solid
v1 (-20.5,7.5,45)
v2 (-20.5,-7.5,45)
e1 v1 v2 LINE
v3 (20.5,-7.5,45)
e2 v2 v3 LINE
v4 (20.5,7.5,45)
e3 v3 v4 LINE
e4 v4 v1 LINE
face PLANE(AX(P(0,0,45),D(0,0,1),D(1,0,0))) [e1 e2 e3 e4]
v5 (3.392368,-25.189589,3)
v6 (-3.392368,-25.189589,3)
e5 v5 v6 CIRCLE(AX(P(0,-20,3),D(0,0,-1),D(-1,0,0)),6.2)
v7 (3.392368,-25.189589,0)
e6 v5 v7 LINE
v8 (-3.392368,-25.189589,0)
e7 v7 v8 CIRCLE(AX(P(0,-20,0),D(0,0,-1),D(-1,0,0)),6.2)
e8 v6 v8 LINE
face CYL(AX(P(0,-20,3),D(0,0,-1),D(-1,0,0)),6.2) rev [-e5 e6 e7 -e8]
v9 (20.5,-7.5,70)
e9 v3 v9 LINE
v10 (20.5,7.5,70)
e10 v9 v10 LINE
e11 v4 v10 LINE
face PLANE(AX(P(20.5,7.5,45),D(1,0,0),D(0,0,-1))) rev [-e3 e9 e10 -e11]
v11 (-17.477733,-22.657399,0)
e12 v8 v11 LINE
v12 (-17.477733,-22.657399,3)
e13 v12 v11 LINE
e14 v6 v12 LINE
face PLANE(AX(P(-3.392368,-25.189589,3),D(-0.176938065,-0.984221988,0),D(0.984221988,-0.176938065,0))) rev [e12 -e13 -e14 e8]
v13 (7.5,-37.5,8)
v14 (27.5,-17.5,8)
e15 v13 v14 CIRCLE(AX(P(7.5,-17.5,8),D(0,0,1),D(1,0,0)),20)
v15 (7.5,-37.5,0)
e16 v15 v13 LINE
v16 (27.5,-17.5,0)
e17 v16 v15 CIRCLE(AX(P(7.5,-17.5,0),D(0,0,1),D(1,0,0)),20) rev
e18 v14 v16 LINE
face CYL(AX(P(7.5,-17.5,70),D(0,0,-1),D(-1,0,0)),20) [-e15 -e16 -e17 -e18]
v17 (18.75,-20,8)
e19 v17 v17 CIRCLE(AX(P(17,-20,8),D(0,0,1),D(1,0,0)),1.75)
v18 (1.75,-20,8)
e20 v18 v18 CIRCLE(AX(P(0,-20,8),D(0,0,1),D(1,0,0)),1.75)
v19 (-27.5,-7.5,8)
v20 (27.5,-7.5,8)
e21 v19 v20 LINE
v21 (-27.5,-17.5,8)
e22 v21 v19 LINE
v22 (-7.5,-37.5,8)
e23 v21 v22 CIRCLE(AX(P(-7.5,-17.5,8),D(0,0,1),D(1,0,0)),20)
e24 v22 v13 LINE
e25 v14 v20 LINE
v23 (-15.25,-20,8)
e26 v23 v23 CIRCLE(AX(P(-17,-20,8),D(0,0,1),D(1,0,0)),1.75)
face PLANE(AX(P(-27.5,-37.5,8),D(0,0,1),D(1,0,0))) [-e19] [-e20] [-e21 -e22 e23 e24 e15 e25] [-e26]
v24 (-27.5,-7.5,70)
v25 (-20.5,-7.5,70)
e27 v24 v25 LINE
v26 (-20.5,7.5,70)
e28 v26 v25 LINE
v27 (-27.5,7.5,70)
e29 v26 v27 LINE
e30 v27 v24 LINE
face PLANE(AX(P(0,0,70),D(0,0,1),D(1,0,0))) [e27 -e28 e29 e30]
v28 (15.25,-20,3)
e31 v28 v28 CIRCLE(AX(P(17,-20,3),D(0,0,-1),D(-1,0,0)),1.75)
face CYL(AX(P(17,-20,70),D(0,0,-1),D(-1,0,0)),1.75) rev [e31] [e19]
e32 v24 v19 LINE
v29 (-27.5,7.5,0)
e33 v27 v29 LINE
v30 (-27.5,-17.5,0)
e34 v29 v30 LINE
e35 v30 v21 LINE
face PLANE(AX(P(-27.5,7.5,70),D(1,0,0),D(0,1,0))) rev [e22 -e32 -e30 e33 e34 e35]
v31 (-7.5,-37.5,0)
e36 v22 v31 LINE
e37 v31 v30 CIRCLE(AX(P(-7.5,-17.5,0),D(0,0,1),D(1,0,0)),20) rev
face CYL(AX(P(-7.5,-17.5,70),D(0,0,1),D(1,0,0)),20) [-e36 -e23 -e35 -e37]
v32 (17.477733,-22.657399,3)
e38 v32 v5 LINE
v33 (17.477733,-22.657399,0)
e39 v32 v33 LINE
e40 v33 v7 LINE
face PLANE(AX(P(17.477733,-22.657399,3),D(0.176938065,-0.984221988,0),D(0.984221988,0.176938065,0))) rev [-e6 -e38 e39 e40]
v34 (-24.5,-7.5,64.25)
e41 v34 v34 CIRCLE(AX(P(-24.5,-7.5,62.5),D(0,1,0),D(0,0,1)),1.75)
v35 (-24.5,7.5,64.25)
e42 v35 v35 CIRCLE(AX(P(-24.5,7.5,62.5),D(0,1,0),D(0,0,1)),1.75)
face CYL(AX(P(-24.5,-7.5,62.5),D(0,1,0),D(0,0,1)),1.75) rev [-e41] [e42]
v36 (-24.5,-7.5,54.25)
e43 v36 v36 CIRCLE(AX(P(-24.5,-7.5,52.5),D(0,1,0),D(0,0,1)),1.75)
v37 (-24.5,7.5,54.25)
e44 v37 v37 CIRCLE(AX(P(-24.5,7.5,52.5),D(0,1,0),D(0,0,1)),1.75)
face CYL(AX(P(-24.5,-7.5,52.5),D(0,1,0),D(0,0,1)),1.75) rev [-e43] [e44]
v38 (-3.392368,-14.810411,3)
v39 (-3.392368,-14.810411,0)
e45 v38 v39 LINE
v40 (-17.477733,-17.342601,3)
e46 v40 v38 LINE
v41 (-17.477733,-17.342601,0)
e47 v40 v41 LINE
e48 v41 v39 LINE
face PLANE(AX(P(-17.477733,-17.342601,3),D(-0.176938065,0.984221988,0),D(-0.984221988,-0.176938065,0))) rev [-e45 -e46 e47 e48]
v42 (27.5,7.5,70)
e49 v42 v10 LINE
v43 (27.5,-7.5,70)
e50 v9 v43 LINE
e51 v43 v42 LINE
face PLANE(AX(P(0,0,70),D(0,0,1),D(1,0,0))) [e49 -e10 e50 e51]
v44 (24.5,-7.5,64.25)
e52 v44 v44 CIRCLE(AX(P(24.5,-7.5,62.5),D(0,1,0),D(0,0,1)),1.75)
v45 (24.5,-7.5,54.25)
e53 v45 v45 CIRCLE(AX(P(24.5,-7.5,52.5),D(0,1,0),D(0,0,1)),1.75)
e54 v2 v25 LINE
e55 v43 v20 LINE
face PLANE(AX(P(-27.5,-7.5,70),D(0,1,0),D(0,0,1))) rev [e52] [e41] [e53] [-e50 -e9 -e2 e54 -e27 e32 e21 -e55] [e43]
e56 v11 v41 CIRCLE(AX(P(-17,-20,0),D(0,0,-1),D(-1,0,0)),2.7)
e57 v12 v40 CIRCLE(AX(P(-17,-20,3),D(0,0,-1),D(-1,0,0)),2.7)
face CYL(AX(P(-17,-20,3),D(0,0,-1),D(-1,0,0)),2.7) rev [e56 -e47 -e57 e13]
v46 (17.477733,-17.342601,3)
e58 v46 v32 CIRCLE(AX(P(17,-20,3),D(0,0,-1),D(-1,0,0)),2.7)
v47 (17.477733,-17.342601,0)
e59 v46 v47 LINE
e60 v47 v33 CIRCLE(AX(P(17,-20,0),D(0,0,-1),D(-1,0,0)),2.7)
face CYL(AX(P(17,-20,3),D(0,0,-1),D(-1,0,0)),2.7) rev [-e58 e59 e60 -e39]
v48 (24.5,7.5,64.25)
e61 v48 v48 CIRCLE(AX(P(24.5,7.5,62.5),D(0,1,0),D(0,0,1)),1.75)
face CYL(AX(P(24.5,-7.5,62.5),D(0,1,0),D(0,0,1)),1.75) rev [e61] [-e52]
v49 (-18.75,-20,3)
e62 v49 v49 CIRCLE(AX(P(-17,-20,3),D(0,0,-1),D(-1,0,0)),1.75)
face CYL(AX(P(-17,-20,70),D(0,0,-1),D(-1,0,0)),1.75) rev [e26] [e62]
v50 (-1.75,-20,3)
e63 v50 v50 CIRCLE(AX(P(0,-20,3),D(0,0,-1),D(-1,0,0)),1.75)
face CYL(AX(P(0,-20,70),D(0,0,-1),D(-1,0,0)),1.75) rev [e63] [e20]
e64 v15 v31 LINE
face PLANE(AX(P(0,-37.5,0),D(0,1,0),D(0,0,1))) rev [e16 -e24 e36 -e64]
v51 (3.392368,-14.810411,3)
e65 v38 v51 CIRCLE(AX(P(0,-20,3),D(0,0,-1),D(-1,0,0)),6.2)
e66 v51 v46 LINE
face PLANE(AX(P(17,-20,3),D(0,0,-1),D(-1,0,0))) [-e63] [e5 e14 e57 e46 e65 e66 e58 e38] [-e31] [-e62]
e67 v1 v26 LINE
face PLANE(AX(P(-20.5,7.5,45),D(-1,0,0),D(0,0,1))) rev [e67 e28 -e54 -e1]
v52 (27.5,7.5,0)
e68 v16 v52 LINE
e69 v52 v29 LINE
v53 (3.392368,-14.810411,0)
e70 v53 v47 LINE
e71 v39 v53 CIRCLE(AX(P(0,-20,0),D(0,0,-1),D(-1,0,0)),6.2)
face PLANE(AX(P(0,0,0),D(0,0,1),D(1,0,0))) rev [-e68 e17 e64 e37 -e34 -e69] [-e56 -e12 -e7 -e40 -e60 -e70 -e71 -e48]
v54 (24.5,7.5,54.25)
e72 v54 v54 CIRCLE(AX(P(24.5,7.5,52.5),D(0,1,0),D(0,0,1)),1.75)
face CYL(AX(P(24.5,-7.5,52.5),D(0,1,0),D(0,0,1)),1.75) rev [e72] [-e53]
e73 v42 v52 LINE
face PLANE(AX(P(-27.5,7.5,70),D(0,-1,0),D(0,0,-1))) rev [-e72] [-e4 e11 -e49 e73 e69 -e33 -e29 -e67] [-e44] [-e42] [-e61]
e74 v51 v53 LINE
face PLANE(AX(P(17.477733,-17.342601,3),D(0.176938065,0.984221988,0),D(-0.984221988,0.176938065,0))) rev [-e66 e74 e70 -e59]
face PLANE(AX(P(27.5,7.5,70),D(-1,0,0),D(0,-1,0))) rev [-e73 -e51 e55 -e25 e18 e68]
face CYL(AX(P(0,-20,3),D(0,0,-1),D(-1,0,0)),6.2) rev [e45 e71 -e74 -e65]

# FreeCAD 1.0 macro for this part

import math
import FreeCAD as App
import Part
import Sketcher

V = App.Vector
Q = App.Units.Quantity


def edges_at(feature, points):
    """Names of the edges that pass closest to the given points."""
    edges = feature.Shape.Edges
    near = lambda p: min(range(len(edges)), key=lambda i: edges[i].distToShape(Part.Vertex(*p))[0])
    return sorted({f"Edge{near(p) + 1}" for p in points})

doc = App.newDocument("Part")
params = doc.addObject("Spreadsheet::Sheet", "Params")
for row, (alias, value) in enumerate([
    ("sketch1_width", "55 mm"),
    ("sketch1_height", "15 mm"),
    ("pad1_length", "70 mm"),
    ("sketch2_width", "41 mm"),
    ("sketch2_height", "15 mm"),
    ("pocket1_length", "25 mm"),
    ("sketch3_diameter", "3.5 mm"),
    ("sketch4_width", "55 mm"),
    ("sketch4_height", "8 mm"),
    ("pad2_length", "30 mm"),
    ("fillet_radius", "20 mm"),
    ("sketch5_radius", "6.2 mm"),
    ("sketch5_radius2", "2.7 mm"),
    ("sketch5_radius3", "6.2 mm"),
    ("sketch5_radius4", "2.7 mm"),
    ("pocket3_length", "3 mm"),
    ("sketch6_diameter", "3.5 mm"),
], start=1):
    params.set(f"A{row}", alias)
    params.set(f"B{row}", "=" + value)
    params.setAlias(f"B{row}", alias)

body = doc.addObject("PartDesign::Body", "Body")

# Sketch on XY plane
sketch1 = body.newObject("Sketcher::SketchObject", "Sketch")
sketch1.AttachmentSupport = (doc.getObject("XY_Plane"), [""])
sketch1.MapMode = "FlatFace"
sketch1.addGeometry([
    Part.LineSegment(V(-28, 8, 0), V(-28, -8, 0)),
    Part.LineSegment(V(-28, -8, 0), V(28, -8, 0)),
    Part.LineSegment(V(28, -8, 0), V(28, 8, 0)),
    Part.LineSegment(V(28, 8, 0), V(-28, 8, 0)),
], False)
sketch1.addConstraint([
    Sketcher.Constraint("Coincident", 0, 2, 1, 1),
    Sketcher.Constraint("Coincident", 1, 2, 2, 1),
    Sketcher.Constraint("Coincident", 2, 2, 3, 1),
    Sketcher.Constraint("Coincident", 3, 2, 0, 1),
    Sketcher.Constraint("Vertical", 0),
    Sketcher.Constraint("Horizontal", 1),
    Sketcher.Constraint("Vertical", 2),
    Sketcher.Constraint("Horizontal", 3),
    Sketcher.Constraint("Symmetric", 0, 2, 2, 2, -1, 1),
    Sketcher.Constraint("DistanceX", 1, 1, 1, 2, Q("55 mm")),
    Sketcher.Constraint("DistanceY", 0, 2, 0, 1, Q("15 mm")),
])
sketch1.setExpression("Constraints[9]", "Params.sketch1_width")
sketch1.setExpression("Constraints[10]", "Params.sketch1_height")
pad1 = body.newObject("PartDesign::Pad", "Pad")
pad1.Profile = sketch1
pad1.setExpression("Length", "Params.pad1_length")

# Sketch on XY plane
sketch2 = body.newObject("Sketcher::SketchObject", "Sketch001")
sketch2.AttachmentSupport = (doc.getObject("XY_Plane"), [""])
sketch2.MapMode = "FlatFace"
sketch2.AttachmentOffset = App.Placement(V(0, 0, 70), App.Rotation())
sketch2.addGeometry([
    Part.LineSegment(V(-20, 8, 0), V(-20, -8, 0)),
    Part.LineSegment(V(-20, -8, 0), V(20, -8, 0)),
    Part.LineSegment(V(20, -8, 0), V(20, 8, 0)),
    Part.LineSegment(V(20, 8, 0), V(-20, 8, 0)),
], False)
sketch2.addConstraint([
    Sketcher.Constraint("Coincident", 0, 2, 1, 1),
    Sketcher.Constraint("Coincident", 1, 2, 2, 1),
    Sketcher.Constraint("Coincident", 2, 2, 3, 1),
    Sketcher.Constraint("Coincident", 3, 2, 0, 1),
    Sketcher.Constraint("Vertical", 0),
    Sketcher.Constraint("Horizontal", 1),
    Sketcher.Constraint("Vertical", 2),
    Sketcher.Constraint("Horizontal", 3),
    Sketcher.Constraint("Symmetric", 0, 2, 2, 2, -1, 1),
    Sketcher.Constraint("DistanceX", 1, 1, 1, 2, Q("41 mm")),
    Sketcher.Constraint("DistanceY", 0, 2, 0, 1, Q("15 mm")),
])
sketch2.setExpression("Constraints[9]", "Params.sketch2_width")
sketch2.setExpression("Constraints[10]", "Params.sketch2_height")
pocket1 = body.newObject("PartDesign::Pocket", "Pocket")
pocket1.Profile = sketch2
pocket1.setExpression("Length", "Params.pocket1_length")

# Sketch on XZ plane
sketch3 = body.newObject("Sketcher::SketchObject", "Sketch002")
sketch3.AttachmentSupport = (doc.getObject("XZ_Plane"), [""])
sketch3.MapMode = "FlatFace"
sketch3.AttachmentOffset = App.Placement(V(0, 0, -7.5), App.Rotation())
sketch3.addGeometry([
    Part.Circle(V(-24.5, 62.5, 0), V(0, 0, 1), 1.8),
    Part.Circle(V(24.5, 62.5, 0), V(0, 0, 1), 1.8),
    Part.Circle(V(-24.5, 52.5, 0), V(0, 0, 1), 1.8),
    Part.Circle(V(24.5, 52.5, 0), V(0, 0, 1), 1.8),
], False)
sketch3.addConstraint([
    Sketcher.Constraint("Equal", 0, 1),
    Sketcher.Constraint("Equal", 1, 2),
    Sketcher.Constraint("Equal", 2, 3),
    Sketcher.Constraint("Symmetric", 0, 3, 1, 3, -2),
    Sketcher.Constraint("Symmetric", 2, 3, 3, 3, -2),
    Sketcher.Constraint("Vertical", 0, 3, 2, 3),
    Sketcher.Constraint("Diameter", 0, Q("3.5 mm")),
    Sketcher.Constraint("DistanceX", 0, 3, 1, 3, Q("49 mm")),
    Sketcher.Constraint("DistanceY", 2, 3, 0, 3, Q("10 mm")),
    Sketcher.Constraint("DistanceY", -1, 1, 0, 3, Q("62.5 mm")),
])
sketch3.setExpression("Constraints[6]", "Params.sketch3_diameter")
pocket2 = body.newObject("PartDesign::Pocket", "Pocket001")
pocket2.Profile = sketch3
pocket2.Type = "ThroughAll"
pocket2.Reversed = True

# Sketch on XZ plane
sketch4 = body.newObject("Sketcher::SketchObject", "Sketch003")
sketch4.AttachmentSupport = (doc.getObject("XZ_Plane"), [""])
sketch4.MapMode = "FlatFace"
sketch4.AttachmentOffset = App.Placement(V(0, 0, 7.5), App.Rotation())
sketch4.addGeometry([
    Part.LineSegment(V(-28, 0, 0), V(-28, 8, 0)),
    Part.LineSegment(V(-28, 8, 0), V(28, 8, 0)),
    Part.LineSegment(V(28, 8, 0), V(28, 0, 0)),
    Part.LineSegment(V(28, 0, 0), V(-28, 0, 0)),
], False)
sketch4.addConstraint([
    Sketcher.Constraint("Coincident", 0, 2, 1, 1),
    Sketcher.Constraint("Coincident", 1, 2, 2, 1),
    Sketcher.Constraint("Coincident", 2, 2, 3, 1),
    Sketcher.Constraint("Coincident", 3, 2, 0, 1),
    Sketcher.Constraint("Vertical", 0),
    Sketcher.Constraint("Horizontal", 1),
    Sketcher.Constraint("Vertical", 2),
    Sketcher.Constraint("Horizontal", 3),
    Sketcher.Constraint("Symmetric", 2, 2, 3, 2, -1, 1),
    Sketcher.Constraint("DistanceX", 1, 1, 1, 2, Q("55 mm")),
    Sketcher.Constraint("DistanceY", 0, 1, 0, 2, Q("8 mm")),
])
sketch4.setExpression("Constraints[9]", "Params.sketch4_width")
sketch4.setExpression("Constraints[10]", "Params.sketch4_height")
pad2 = body.newObject("PartDesign::Pad", "Pad001")
pad2.Profile = sketch4
pad2.setExpression("Length", "Params.pad2_length")
doc.recompute()

fillet = body.newObject("PartDesign::Fillet", "Fillet")
fillet.Base = (pad2, edges_at(pad2, [(-27.5, -37.5, 4), (27.5, -37.5, 4)]))
fillet.setExpression("Radius", "Params.fillet_radius")

# Sketch on XY plane
sketch5 = body.newObject("Sketcher::SketchObject", "Sketch004")
sketch5.AttachmentSupport = (doc.getObject("XY_Plane"), [""])
sketch5.MapMode = "FlatFace"
sketch5.addGeometry([
    Part.LineSegment(V(17.477733, -22.657399, 0), V(3.392368, -25.189589, 0)),  # 0
    Part.ArcOfCircle(Part.Circle(V(0, -20, 0), V(0, 0, 1), 6.2), math.radians(-123.17213), math.radians(-56.82787)),  # 1
    Part.LineSegment(V(-3.392368, -25.189589, 0), V(-17.477733, -22.657399, 0)),  # 2
    Part.ArcOfCircle(Part.Circle(V(-17, -20, 0), V(0, 0, 1), 2.7), math.radians(100.191461), math.radians(259.808539)),  # 3
    Part.LineSegment(V(-17.477733, -17.342601, 0), V(-3.392368, -14.810411, 0)),  # 4
    Part.ArcOfCircle(Part.Circle(V(0, -20, 0), V(0, 0, 1), 6.2), math.radians(56.82787), math.radians(123.17213)),  # 5
    Part.LineSegment(V(3.392368, -14.810411, 0), V(17.477733, -17.342601, 0)),  # 6
    Part.ArcOfCircle(Part.Circle(V(17, -20, 0), V(0, 0, 1), 2.7), math.radians(-79.808539), math.radians(79.808539)),  # 7
], False)
sketch5.addConstraint([
    Sketcher.Constraint("Coincident", 0, 2, 1, 2),
    Sketcher.Constraint("Coincident", 1, 1, 2, 1),
    Sketcher.Constraint("Coincident", 2, 2, 3, 2),
    Sketcher.Constraint("Coincident", 3, 1, 4, 1),
    Sketcher.Constraint("Coincident", 4, 2, 5, 2),
    Sketcher.Constraint("Coincident", 5, 1, 6, 1),
    Sketcher.Constraint("Coincident", 6, 2, 7, 2),
    Sketcher.Constraint("Coincident", 7, 1, 0, 1),
    Sketcher.Constraint("Coincident", 5, 3, 1, 3),
    Sketcher.Constraint("PointOnObject", 1, 3, -2),
    Sketcher.Constraint("Radius", 1, Q("6.2 mm")),
    Sketcher.Constraint("Radius", 3, Q("2.7 mm")),
    Sketcher.Constraint("Radius", 5, Q("6.2 mm")),
    Sketcher.Constraint("Radius", 7, Q("2.7 mm")),
    Sketcher.Constraint("DistanceY", 1, 3, -1, 1, Q("20 mm")),
    Sketcher.Constraint("DistanceX", 3, 3, -1, 1, Q("17 mm")),
    Sketcher.Constraint("DistanceY", 3, 3, -1, 1, Q("20 mm")),
    Sketcher.Constraint("DistanceX", -1, 1, 7, 3, Q("17 mm")),
    Sketcher.Constraint("DistanceY", 7, 3, -1, 1, Q("20 mm")),
    Sketcher.Constraint("DistanceY", 2, 2, -1, 1, Q("22.657399 mm")),
    Sketcher.Constraint("DistanceY", 3, 1, -1, 1, Q("17.342601 mm")),
    Sketcher.Constraint("DistanceY", 6, 2, -1, 1, Q("17.342601 mm")),
    Sketcher.Constraint("DistanceY", 7, 1, -1, 1, Q("22.657399 mm")),
    Sketcher.Constraint("DistanceX", 2, 2, 0, 2, Q("20.870101 mm")),
    Sketcher.Constraint("DistanceX", 1, 1, -1, 1, Q("3.392368 mm")),
    Sketcher.Constraint("DistanceX", 4, 2, -1, 1, Q("3.392368 mm")),
    Sketcher.Constraint("DistanceX", -1, 1, 5, 1, Q("3.392368 mm")),
])
sketch5.setExpression("Constraints[10]", "Params.sketch5_radius")
sketch5.setExpression("Constraints[11]", "Params.sketch5_radius2")
sketch5.setExpression("Constraints[12]", "Params.sketch5_radius3")
sketch5.setExpression("Constraints[13]", "Params.sketch5_radius4")
pocket3 = body.newObject("PartDesign::Pocket", "Pocket002")
pocket3.Profile = sketch5
pocket3.setExpression("Length", "Params.pocket3_length")
pocket3.Reversed = True

# Sketch on XY plane
sketch6 = body.newObject("Sketcher::SketchObject", "Sketch005")
sketch6.AttachmentSupport = (doc.getObject("XY_Plane"), [""])
sketch6.MapMode = "FlatFace"
sketch6.AttachmentOffset = App.Placement(V(0, 0, 3), App.Rotation())
sketch6.addGeometry([
    Part.Circle(V(0, -20, 0), V(0, 0, 1), 1.8),
    Part.Circle(V(-17, -20, 0), V(0, 0, 1), 1.8),
    Part.Circle(V(17, -20, 0), V(0, 0, 1), 1.8),
], False)
sketch6.addConstraint([
    Sketcher.Constraint("Equal", 0, 1),
    Sketcher.Constraint("Equal", 1, 2),
    Sketcher.Constraint("Symmetric", 1, 3, 2, 3, -2),
    Sketcher.Constraint("PointOnObject", 0, 3, -2),
    Sketcher.Constraint("Horizontal", 0, 3, 1, 3),
    Sketcher.Constraint("Diameter", 0, Q("3.5 mm")),
    Sketcher.Constraint("DistanceY", 0, 3, -1, 1, Q("20 mm")),
    Sketcher.Constraint("DistanceX", 1, 3, -1, 1, Q("17 mm")),
])
sketch6.setExpression("Constraints[5]", "Params.sketch6_diameter")
pocket4 = body.newObject("PartDesign::Pocket", "Pocket003")
pocket4.Profile = sketch6
pocket4.Type = "ThroughAll"
pocket4.Reversed = True

doc.recompute()
